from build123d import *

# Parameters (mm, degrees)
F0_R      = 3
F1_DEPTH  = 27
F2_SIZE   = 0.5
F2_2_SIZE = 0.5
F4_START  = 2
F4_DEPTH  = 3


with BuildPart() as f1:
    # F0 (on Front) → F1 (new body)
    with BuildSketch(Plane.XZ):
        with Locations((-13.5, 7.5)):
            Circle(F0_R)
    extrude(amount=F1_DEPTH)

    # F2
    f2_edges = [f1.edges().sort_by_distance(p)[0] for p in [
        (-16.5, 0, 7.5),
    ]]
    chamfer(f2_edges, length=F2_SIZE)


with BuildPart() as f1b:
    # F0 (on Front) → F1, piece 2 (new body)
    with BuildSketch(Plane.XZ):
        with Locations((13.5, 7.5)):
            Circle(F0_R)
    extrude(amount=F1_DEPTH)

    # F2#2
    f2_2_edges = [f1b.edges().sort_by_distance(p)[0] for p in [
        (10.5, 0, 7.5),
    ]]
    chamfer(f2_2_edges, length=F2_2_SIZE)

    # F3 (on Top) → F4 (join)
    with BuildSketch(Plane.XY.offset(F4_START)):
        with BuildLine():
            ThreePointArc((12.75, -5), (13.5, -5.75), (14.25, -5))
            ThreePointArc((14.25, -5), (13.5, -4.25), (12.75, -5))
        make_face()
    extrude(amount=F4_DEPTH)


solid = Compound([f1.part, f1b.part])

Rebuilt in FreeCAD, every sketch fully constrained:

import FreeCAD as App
import Part
import Sketcher
from FreeCAD import Vector
Q = App.Units.Quantity


def edges_at(feature, points):
    """Names of the edges that pass closest to the given points."""
    edges = feature.Shape.Edges
    near = lambda p: min(range(len(edges)), key=lambda i: edges[i].distToShape(Part.Vertex(*p))[0])
    return sorted({f"Edge{near(p) + 1}" for p in points})

doc = App.newDocument("Part")
body = doc.addObject("PartDesign::Body", "Body")

# Sketch on XZ plane
sketch1 = doc.addObject("Sketcher::SketchObject", "Sketch")
body.addObject(sketch1)
sketch1.AttachmentSupport = (doc.XZ_Plane, [""])
sketch1.MapMode = "FlatFace"
sketch1.addGeometry(Part.Circle(Vector(-13.5, 7.5, 0), Vector(0, 0, 1), 3), False)
sketch1.addConstraint(Sketcher.Constraint("Diameter", 0, Q("6 mm")))
sketch1.addConstraint(Sketcher.Constraint("DistanceX", 0, 3, -1, 1, Q("13.5 mm")))
sketch1.addConstraint(Sketcher.Constraint("DistanceY", -1, 1, 0, 3, Q("7.5 mm")))
pad1 = doc.addObject("PartDesign::Pad", "Pad")
body.addObject(pad1)
pad1.Profile = sketch1
pad1.Length = 27
doc.recompute()

chamfer = doc.addObject("PartDesign::Chamfer", "Chamfer")
body.addObject(chamfer)
chamfer.Base = (pad1, edges_at(pad1, [(-16.5, 0, 7.5)]))
chamfer.Size = 0.5
body2 = doc.addObject("PartDesign::Body", "Body001")

# Sketch on XZ plane
sketch2 = doc.addObject("Sketcher::SketchObject", "Sketch001")
body2.addObject(sketch2)
sketch2.AttachmentSupport = (doc.getObject("XZ_Plane001"), [""])
sketch2.MapMode = "FlatFace"
sketch2.addGeometry(Part.Circle(Vector(13.5, 7.5, 0), Vector(0, 0, 1), 3), False)
sketch2.addConstraint(Sketcher.Constraint("Diameter", 0, Q("6 mm")))
sketch2.addConstraint(Sketcher.Constraint("DistanceX", -1, 1, 0, 3, Q("13.5 mm")))
sketch2.addConstraint(Sketcher.Constraint("DistanceY", -1, 1, 0, 3, Q("7.5 mm")))
pad2 = doc.addObject("PartDesign::Pad", "Pad001")
body2.addObject(pad2)
pad2.Profile = sketch2
pad2.Length = 27
doc.recompute()

chamfer2 = doc.addObject("PartDesign::Chamfer", "Chamfer001")
body2.addObject(chamfer2)
chamfer2.Base = (pad2, edges_at(pad2, [(10.5, 0, 7.5)]))
chamfer2.Size = 0.5

# Sketch on XY plane
sketch3 = doc.addObject("Sketcher::SketchObject", "Sketch002")
body2.addObject(sketch3)
sketch3.AttachmentSupport = (doc.getObject("XY_Plane001"), [""])
sketch3.MapMode = "FlatFace"
sketch3.AttachmentOffset = App.Placement(Vector(0, 0, 2), App.Rotation())
sketch3.addGeometry(Part.Circle(Vector(13.5, -5, 0), Vector(0, 0, 1), 0.8), False)
sketch3.addConstraint(Sketcher.Constraint("Diameter", 0, Q("1.5 mm")))
sketch3.addConstraint(Sketcher.Constraint("DistanceY", 0, 3, -1, 1, Q("5 mm")))
sketch3.addConstraint(Sketcher.Constraint("DistanceX", -1, 1, 0, 3, Q("13.5 mm")))
pad3 = doc.addObject("PartDesign::Pad", "Pad002")
body2.addObject(pad3)
pad3.Profile = sketch3
pad3.Length = 3

doc.recompute()
